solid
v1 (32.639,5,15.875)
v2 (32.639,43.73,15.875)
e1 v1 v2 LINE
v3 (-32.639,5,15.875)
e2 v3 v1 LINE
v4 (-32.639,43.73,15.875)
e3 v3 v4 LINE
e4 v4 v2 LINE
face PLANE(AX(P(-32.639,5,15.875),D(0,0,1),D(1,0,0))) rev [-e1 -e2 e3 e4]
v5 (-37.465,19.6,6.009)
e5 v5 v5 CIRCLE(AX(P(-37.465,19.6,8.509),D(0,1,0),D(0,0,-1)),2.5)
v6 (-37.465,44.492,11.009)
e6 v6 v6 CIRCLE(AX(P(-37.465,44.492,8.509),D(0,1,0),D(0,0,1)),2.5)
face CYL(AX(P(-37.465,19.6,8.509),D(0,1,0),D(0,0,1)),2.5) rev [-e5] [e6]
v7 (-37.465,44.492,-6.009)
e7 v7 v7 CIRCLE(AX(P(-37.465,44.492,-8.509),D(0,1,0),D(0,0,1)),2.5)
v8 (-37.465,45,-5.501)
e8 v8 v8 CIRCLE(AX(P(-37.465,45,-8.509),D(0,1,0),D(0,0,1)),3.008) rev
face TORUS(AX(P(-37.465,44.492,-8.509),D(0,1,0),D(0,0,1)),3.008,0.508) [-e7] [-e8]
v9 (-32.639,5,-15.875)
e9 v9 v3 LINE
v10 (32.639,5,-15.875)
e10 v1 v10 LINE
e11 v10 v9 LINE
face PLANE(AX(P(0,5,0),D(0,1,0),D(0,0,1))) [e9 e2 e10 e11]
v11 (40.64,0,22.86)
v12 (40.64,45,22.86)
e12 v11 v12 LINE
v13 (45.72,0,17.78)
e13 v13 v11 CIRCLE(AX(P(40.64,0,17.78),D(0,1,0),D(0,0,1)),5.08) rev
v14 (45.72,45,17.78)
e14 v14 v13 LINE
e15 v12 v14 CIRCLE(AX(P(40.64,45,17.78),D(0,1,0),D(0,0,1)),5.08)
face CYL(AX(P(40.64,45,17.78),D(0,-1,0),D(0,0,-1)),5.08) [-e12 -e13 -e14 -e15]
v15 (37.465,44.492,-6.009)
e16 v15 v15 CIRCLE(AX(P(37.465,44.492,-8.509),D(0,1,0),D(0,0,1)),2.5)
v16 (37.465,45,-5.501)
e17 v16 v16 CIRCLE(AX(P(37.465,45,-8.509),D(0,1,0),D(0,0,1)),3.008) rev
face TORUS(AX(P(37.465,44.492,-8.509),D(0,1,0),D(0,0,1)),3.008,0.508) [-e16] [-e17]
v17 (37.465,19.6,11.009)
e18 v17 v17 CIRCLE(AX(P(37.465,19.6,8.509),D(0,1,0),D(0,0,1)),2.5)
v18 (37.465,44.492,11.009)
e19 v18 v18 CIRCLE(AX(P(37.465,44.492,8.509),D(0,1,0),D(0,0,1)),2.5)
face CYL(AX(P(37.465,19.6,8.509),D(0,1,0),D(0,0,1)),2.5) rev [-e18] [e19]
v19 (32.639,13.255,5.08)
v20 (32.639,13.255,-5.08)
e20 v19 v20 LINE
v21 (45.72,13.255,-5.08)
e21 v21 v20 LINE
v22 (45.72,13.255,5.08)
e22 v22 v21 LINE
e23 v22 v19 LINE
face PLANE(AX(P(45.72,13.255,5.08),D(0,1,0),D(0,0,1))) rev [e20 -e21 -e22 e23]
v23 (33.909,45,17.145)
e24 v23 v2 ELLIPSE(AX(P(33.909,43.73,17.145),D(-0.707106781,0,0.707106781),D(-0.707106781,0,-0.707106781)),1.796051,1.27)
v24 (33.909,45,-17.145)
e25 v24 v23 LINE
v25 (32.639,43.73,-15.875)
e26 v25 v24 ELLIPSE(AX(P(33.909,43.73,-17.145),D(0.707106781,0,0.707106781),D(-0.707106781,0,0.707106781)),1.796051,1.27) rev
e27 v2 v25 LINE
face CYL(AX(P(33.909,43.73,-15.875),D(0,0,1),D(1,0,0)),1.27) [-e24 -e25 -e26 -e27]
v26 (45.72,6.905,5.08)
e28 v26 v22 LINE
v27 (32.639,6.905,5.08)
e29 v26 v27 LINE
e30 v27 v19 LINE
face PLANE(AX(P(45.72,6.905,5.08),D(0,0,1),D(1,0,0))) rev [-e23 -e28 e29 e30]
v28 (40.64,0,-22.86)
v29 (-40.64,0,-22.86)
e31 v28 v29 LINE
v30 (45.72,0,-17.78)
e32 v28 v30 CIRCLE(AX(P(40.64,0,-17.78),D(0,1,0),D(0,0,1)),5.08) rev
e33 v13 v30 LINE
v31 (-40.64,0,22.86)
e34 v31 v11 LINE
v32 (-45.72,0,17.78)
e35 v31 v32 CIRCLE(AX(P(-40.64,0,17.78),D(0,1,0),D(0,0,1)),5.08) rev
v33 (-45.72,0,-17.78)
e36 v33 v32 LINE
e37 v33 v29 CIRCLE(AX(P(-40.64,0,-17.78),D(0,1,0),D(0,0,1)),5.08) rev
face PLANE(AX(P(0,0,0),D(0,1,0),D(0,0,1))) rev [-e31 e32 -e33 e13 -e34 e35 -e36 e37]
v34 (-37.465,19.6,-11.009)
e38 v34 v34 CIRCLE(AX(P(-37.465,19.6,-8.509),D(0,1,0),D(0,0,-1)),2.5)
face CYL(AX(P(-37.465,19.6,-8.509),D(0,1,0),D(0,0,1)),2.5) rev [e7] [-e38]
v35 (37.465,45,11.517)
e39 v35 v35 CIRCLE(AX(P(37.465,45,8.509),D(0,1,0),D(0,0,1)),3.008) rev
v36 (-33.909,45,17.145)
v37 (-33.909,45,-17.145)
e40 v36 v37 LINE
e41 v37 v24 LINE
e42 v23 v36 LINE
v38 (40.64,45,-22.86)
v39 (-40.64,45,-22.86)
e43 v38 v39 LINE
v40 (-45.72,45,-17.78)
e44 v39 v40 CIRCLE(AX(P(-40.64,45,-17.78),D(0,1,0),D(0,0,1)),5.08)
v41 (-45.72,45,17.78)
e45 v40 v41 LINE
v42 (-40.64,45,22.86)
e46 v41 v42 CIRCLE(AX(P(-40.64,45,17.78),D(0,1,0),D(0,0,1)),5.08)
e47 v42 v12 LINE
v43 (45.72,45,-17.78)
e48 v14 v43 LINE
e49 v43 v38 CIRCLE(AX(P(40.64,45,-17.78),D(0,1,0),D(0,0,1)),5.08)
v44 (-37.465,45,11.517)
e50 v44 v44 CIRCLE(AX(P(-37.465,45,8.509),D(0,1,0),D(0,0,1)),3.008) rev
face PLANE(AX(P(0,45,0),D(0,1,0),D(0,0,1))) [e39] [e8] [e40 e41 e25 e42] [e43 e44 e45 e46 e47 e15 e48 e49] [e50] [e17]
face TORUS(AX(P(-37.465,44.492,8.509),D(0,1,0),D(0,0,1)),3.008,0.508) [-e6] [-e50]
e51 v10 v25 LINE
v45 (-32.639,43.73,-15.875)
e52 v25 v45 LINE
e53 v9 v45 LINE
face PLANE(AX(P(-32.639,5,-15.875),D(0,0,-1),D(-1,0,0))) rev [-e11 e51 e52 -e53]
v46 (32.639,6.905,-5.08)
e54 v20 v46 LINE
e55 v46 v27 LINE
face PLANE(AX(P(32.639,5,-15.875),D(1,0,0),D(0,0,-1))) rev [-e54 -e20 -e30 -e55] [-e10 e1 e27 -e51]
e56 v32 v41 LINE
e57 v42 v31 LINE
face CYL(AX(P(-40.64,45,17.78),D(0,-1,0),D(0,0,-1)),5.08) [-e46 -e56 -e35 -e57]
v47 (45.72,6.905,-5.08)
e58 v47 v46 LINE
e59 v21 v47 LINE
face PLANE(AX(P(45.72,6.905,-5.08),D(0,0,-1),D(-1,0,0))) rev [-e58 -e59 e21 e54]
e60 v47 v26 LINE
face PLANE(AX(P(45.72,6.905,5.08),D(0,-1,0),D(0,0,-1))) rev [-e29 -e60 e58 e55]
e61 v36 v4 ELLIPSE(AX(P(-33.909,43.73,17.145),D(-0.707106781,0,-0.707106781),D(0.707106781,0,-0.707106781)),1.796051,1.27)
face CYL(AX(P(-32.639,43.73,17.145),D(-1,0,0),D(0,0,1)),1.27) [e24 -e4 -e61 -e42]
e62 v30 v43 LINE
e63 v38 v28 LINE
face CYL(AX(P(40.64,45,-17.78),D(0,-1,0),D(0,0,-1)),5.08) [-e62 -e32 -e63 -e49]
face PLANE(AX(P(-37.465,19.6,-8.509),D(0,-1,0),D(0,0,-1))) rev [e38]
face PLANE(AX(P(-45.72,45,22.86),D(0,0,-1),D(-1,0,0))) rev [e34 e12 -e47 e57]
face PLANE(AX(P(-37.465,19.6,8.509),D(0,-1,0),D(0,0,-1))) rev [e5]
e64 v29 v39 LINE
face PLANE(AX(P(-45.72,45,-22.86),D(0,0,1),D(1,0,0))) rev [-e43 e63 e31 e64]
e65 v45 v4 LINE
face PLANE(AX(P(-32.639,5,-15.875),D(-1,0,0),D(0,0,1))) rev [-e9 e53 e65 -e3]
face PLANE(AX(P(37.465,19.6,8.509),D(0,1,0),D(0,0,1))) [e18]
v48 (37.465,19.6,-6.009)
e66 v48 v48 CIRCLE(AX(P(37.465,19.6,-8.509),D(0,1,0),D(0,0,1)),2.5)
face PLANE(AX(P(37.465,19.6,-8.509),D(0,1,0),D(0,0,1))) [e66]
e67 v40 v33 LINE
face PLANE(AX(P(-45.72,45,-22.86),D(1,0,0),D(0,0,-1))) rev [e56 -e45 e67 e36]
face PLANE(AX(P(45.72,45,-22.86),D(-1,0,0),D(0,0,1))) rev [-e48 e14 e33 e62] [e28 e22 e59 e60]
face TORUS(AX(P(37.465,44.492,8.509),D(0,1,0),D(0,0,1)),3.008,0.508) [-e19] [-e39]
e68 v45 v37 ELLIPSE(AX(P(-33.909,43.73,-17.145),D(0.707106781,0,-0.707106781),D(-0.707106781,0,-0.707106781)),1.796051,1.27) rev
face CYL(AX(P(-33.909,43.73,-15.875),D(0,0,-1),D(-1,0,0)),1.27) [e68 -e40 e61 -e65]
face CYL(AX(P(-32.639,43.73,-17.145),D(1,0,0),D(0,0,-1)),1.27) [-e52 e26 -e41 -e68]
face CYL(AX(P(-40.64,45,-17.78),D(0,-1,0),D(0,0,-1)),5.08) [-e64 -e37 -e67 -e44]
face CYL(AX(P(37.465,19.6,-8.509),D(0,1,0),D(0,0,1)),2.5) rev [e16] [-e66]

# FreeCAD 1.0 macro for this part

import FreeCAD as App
import Part
import Sketcher

V = App.Vector
Q = App.Units.Quantity


def edges_at(feature, points):
    """Names of the edges that pass closest to the given points."""
    edges = feature.Shape.Edges
    near = lambda p: min(range(len(edges)), key=lambda i: edges[i].distToShape(Part.Vertex(*p))[0])
    return sorted({f"Edge{near(p) + 1}" for p in points})


def add_polygon(sketch, points):
    """Adds a closed chain of lines whose ends are joined by coincident constraints."""
    first, n = sketch.GeometryCount, len(points)
    for a, b in zip(points, points[1:] + points[:1]):
        sketch.addGeometry(Part.LineSegment(App.Vector(*a, 0), App.Vector(*b, 0)), False)
    for i in range(n):
        sketch.addConstraint(Sketcher.Constraint("Coincident", first + i, 2, first + (i + 1) % n, 1))

doc = App.newDocument("Part")
body = doc.addObject("PartDesign::Body", "Body")

# Sketch on XZ plane
sketch1 = body.newObject("Sketcher::SketchObject", "Sketch")
sketch1.AttachmentSupport = (doc.getObject("XZ_Plane"), [""])
sketch1.MapMode = "FlatFace"
add_polygon(sketch1, [(-46, -23), (-46, 23), (46, 23), (46, -23)])  # lines 0-3
sketch1.addConstraint([
    Sketcher.Constraint("Vertical", 0),
    Sketcher.Constraint("Horizontal", 1),
    Sketcher.Constraint("Vertical", 2),
    Sketcher.Constraint("Horizontal", 3),
    Sketcher.Constraint("Symmetric", 0, 2, 2, 2, -1, 1),
    Sketcher.Constraint("DistanceX", 1, 1, 1, 2, Q("3.6 in")),
    Sketcher.Constraint("DistanceY", 0, 1, 0, 2, Q("1.8 in")),
])
pad1 = body.newObject("PartDesign::Pad", "Pad")
pad1.Profile = sketch1
pad1.Length = 45
pad1.Reversed = True

# Sketch on XZ plane
sketch2 = body.newObject("Sketcher::SketchObject", "Sketch001")
sketch2.AttachmentSupport = (doc.getObject("XZ_Plane"), [""])
sketch2.MapMode = "FlatFace"
sketch2.AttachmentOffset = App.Placement(V(0, 0, -45), App.Rotation())
add_polygon(sketch2, [(-33, -16), (-33, 16), (33, 16), (33, -16)])  # lines 0-3
sketch2.addConstraint([
    Sketcher.Constraint("Vertical", 0),
    Sketcher.Constraint("Horizontal", 1),
    Sketcher.Constraint("Vertical", 2),
    Sketcher.Constraint("Horizontal", 3),
    Sketcher.Constraint("Symmetric", 0, 2, 2, 2, -1, 1),
    Sketcher.Constraint("DistanceX", 1, 1, 1, 2, Q("2.57 in")),
    Sketcher.Constraint("DistanceY", 0, 1, 0, 2, Q("1.25 in")),
])
pocket1 = body.newObject("PartDesign::Pocket", "Pocket")
pocket1.Profile = sketch2
pocket1.Length = 40
pocket1.Reversed = True

# Sketch on XZ plane
sketch3 = body.newObject("Sketcher::SketchObject", "Sketch002")
sketch3.AttachmentSupport = (doc.getObject("XZ_Plane"), [""])
sketch3.MapMode = "FlatFace"
sketch3.AttachmentOffset = App.Placement(V(0, 0, -45), App.Rotation())
sketch3.addGeometry([
    Part.Circle(V(37.5, -8.5, 0), V(0, 0, 1), 2.5),
    Part.Circle(V(37.5, 8.5, 0), V(0, 0, 1), 2.5),
    Part.Circle(V(-37.5, 8.5, 0), V(0, 0, 1), 2.5),
    Part.Circle(V(-37.5, -8.5, 0), V(0, 0, 1), 2.5),
], False)
sketch3.addConstraint([
    Sketcher.Constraint("Equal", 0, 1),
    Sketcher.Constraint("Equal", 1, 2),
    Sketcher.Constraint("Equal", 2, 3),
    Sketcher.Constraint("Symmetric", 0, 3, 2, 3, -1, 1),
    Sketcher.Constraint("Symmetric", 1, 3, 3, 3, -1, 1),
    Sketcher.Constraint("Symmetric", 1, 3, 2, 3, -2),
    Sketcher.Constraint("Diameter", 0, 5.0),
    Sketcher.Constraint("DistanceY", 0, 3, 1, 3, Q("0.67 in")),
    Sketcher.Constraint("DistanceX", 2, 3, 1, 3, Q("2.95 in")),
])
pocket2 = body.newObject("PartDesign::Pocket", "Pocket001")
pocket2.Profile = sketch3
pocket2.Length = Q("1 in")
pocket2.Reversed = True
doc.recompute()

fillet = body.newObject("PartDesign::Fillet", "Fillet")
fillet.Base = (pocket2, edges_at(pocket2, [
    (45.72, 22.5, 22.86),
    (-45.72, 22.5, 22.86),
    (-45.72, 22.5, -22.86),
    (45.72, 22.5, -22.86),
]))
fillet.Radius = Q("0.2 in")
doc.recompute()

fillet2 = body.newObject("PartDesign::Fillet", "Fillet001")
fillet2.Base = (fillet, edges_at(fillet, [
    (32.639, 45, 0),
    (0, 45, -15.875),
    (-32.639, 45, 0),
    (0, 45, 15.875),
]))
fillet2.Radius = Q("0.05 in")
doc.recompute()

fillet3 = body.newObject("PartDesign::Fillet", "Fillet002")
fillet3.Base = (fillet2, edges_at(fillet2, [
    (-37.465, 45, -6.009),
    (-37.465, 45, 11.009),
    (37.465, 45, 6.009),
    (37.465, 45, -11.009),
]))
fillet3.Radius = Q("0.02 in")

# Sketch on YZ plane
sketch4 = body.newObject("Sketcher::SketchObject", "Sketch003")
sketch4.AttachmentSupport = (doc.getObject("YZ_Plane"), [""])
sketch4.MapMode = "FlatFace"
sketch4.AttachmentOffset = App.Placement(V(0, 0, 1.285 * 25.4), App.Rotation())
add_polygon(sketch4, [(13, -5), (7, -5), (7, 5), (13, 5)])  # lines 0-3
sketch4.addConstraint([
    Sketcher.Constraint("Horizontal", 0),
    Sketcher.Constraint("Vertical", 1),
    Sketcher.Constraint("Horizontal", 2),
    Sketcher.Constraint("Vertical", 3),
    Sketcher.Constraint("DistanceY", 1, 1, 1, 2, Q("0.4 in")),
    Sketcher.Constraint("DistanceX", 0, 2, 0, 1, Q("0.25 in")),
    Sketcher.Constraint("DistanceY", 0, 2, -1, 1, Q("0.2 in")),
    Sketcher.Constraint("DistanceX", -1, 1, 0, 2, 6.905),
])
pocket3 = body.newObject("PartDesign::Pocket", "Pocket002")
pocket3.Profile = sketch4
pocket3.Type = "ThroughAll"
pocket3.Reversed = True

doc.recompute()
